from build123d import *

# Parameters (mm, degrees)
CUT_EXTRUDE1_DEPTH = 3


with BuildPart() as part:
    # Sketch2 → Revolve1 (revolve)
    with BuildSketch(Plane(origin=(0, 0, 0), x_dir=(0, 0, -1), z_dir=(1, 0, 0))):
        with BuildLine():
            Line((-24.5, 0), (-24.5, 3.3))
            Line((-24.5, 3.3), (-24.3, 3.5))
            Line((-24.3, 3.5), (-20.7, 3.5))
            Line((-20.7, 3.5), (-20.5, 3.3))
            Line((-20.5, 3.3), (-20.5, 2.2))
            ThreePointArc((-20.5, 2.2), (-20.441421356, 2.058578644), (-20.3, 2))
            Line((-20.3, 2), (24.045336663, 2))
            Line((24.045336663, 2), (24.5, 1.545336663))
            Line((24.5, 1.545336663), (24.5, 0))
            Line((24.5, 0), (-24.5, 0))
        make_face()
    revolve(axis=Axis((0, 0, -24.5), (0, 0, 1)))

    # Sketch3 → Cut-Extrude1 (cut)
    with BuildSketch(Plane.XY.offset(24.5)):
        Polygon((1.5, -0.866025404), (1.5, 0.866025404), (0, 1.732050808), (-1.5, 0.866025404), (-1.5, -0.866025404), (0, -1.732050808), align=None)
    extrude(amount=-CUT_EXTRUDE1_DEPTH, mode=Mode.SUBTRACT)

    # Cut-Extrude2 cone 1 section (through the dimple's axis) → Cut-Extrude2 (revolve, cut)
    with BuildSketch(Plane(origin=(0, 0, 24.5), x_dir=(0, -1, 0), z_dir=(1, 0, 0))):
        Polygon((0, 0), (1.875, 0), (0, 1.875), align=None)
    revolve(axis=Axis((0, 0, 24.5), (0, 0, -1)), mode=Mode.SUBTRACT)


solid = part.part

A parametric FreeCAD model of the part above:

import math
import FreeCAD as App
import Part
import Sketcher

V = App.Vector
Q = App.Units.Quantity

doc = App.newDocument("Part")
params = doc.addObject("Spreadsheet::Sheet", "Params")
for row, (alias, value) in enumerate([
    ("sketch1_radius", "0.2 mm"),
    ("sketch1_height", "49 mm"),
    ("sketch1_width", "3.3 mm"),
    ("sketch1_width2", "1.1 mm"),
    ("sketch1_height2", "3.6 mm"),
    ("revolution_angle", "360 deg"),
    ("pocket1_length", "3 mm"),
    ("groove_angle", "360 deg"),
], start=1):
    params.set(f"A{row}", alias)
    params.set(f"B{row}", "=" + value)
    params.setAlias(f"B{row}", alias)

body = doc.addObject("PartDesign::Body", "Body")

# Sketch on YZ plane
sketch1 = body.newObject("Sketcher::SketchObject", "Sketch")
sketch1.AttachmentSupport = (doc.getObject("YZ_Plane"), [""])
sketch1.MapMode = "FlatFace"
sketch1.addGeometry([
    Part.LineSegment(V(3.3, 24.5, 0), V(0, 24.5, 0)),  # 0
    Part.LineSegment(V(0, 24.5, 0), V(0, -24.5, 0)),  # 1
    Part.LineSegment(V(0, -24.5, 0), V(1.545337, -24.5, 0)),  # 2
    Part.LineSegment(V(1.545337, -24.5, 0), V(2, -24.045337, 0)),  # 3
    Part.LineSegment(V(2, -24.045337, 0), V(2, 20.3, 0)),  # 4
    Part.ArcOfCircle(Part.Circle(V(2.2, 20.3, 0), V(0, 0, 1), 0.2), math.radians(90), math.radians(180)),  # 5
    Part.LineSegment(V(2.2, 20.5, 0), V(3.3, 20.5, 0)),  # 6
    Part.LineSegment(V(3.3, 20.5, 0), V(3.5, 20.7, 0)),  # 7
    Part.LineSegment(V(3.5, 20.7, 0), V(3.5, 24.3, 0)),  # 8
    Part.LineSegment(V(3.5, 24.3, 0), V(3.3, 24.5, 0)),  # 9
], False)
sketch1.addConstraint([
    Sketcher.Constraint("Coincident", 0, 2, 1, 1),
    Sketcher.Constraint("Coincident", 1, 2, 2, 1),
    Sketcher.Constraint("Coincident", 2, 2, 3, 1),
    Sketcher.Constraint("Coincident", 3, 2, 4, 1),
    Sketcher.Constraint("Tangent", 4, 2, 5, 2),
    Sketcher.Constraint("Tangent", 5, 1, 6, 1),
    Sketcher.Constraint("Coincident", 6, 2, 7, 1),
    Sketcher.Constraint("Coincident", 7, 2, 8, 1),
    Sketcher.Constraint("Coincident", 8, 2, 9, 1),
    Sketcher.Constraint("Coincident", 9, 2, 0, 1),
    Sketcher.Constraint("Horizontal", 0),
    Sketcher.Constraint("Vertical", 1),
    Sketcher.Constraint("Horizontal", 2),
    Sketcher.Constraint("Vertical", 4),
    Sketcher.Constraint("Horizontal", 6),
    Sketcher.Constraint("Vertical", 8),
    Sketcher.Constraint("Symmetric", 0, 2, 1, 2, -1, 1),
    Sketcher.Constraint("Parallel", 3, 7),
    Sketcher.Constraint("Perpendicular", 7, 9),
    Sketcher.Constraint("Vertical", 6, 2, 9, 2),
    Sketcher.Constraint("Equal", 7, 9),
    Sketcher.Constraint("Radius", 5, Q("0.2 mm")),
    Sketcher.Constraint("DistanceY", 1, 2, 1, 1, Q("49 mm")),
    Sketcher.Constraint("DistanceX", 0, 2, 0, 1, Q("3.3 mm")),
    Sketcher.Constraint("DistanceX", 6, 1, 6, 2, Q("1.1 mm")),
    Sketcher.Constraint("DistanceY", 8, 1, 8, 2, Q("3.6 mm")),
    Sketcher.Constraint("DistanceY", 5, 1, 0, 2, Q("4 mm")),
    Sketcher.Constraint("Distance", 3, Q("0.642991 mm")),
])
sketch1.setExpression("Constraints[21]", "Params.sketch1_radius")
sketch1.setExpression("Constraints[22]", "Params.sketch1_height")
sketch1.setExpression("Constraints[23]", "Params.sketch1_width")
sketch1.setExpression("Constraints[24]", "Params.sketch1_width2")
sketch1.setExpression("Constraints[25]", "Params.sketch1_height2")
revolution = body.newObject("PartDesign::Revolution", "Revolution")
revolution.Profile = sketch1
revolution.ReferenceAxis = (sketch1, ["V_Axis"])
revolution.setExpression("Angle", "Params.revolution_angle")

# Sketch on XY plane
sketch2 = body.newObject("Sketcher::SketchObject", "Sketch001")
sketch2.AttachmentSupport = (doc.getObject("XY_Plane"), [""])
sketch2.MapMode = "FlatFace"
sketch2.AttachmentOffset = App.Placement(V(0, 0, 24.5), App.Rotation())
sketch2.addGeometry([
    Part.LineSegment(V(1.5, -0.866025, 0), V(1.5, 0.866025, 0)),  # 0
    Part.LineSegment(V(1.5, 0.866025, 0), V(0, 1.732051, 0)),  # 1
    Part.LineSegment(V(0, 1.732051, 0), V(-1.5, 0.866025, 0)),  # 2
    Part.LineSegment(V(-1.5, 0.866025, 0), V(-1.5, -0.866025, 0)),  # 3
    Part.LineSegment(V(-1.5, -0.866025, 0), V(0, -1.732051, 0)),  # 4
    Part.LineSegment(V(0, -1.732051, 0), V(1.5, -0.866025, 0)),  # 5
], False)
sketch2.addConstraint([
    Sketcher.Constraint("Coincident", 0, 2, 1, 1),
    Sketcher.Constraint("Coincident", 1, 2, 2, 1),
    Sketcher.Constraint("Coincident", 2, 2, 3, 1),
    Sketcher.Constraint("Coincident", 3, 2, 4, 1),
    Sketcher.Constraint("Coincident", 4, 2, 5, 1),
    Sketcher.Constraint("Coincident", 5, 2, 0, 1),
    Sketcher.Constraint("Vertical", 0),
    Sketcher.Constraint("Vertical", 3),
    Sketcher.Constraint("Symmetric", 0, 2, 3, 2, -1, 1),
    Sketcher.Constraint("Symmetric", 1, 2, 4, 2, -1, 1),
    Sketcher.Constraint("PointOnObject", 1, 2, -2),
    Sketcher.Constraint("Parallel", 2, 5),
    Sketcher.Constraint("Horizontal", 0, 2, 2, 2),
    Sketcher.Constraint("Angle", 1, Q("150 deg")),
    Sketcher.Constraint("DistanceX", 2, 2, 0, 2, Q("3 mm")),
    Sketcher.Constraint("DistanceY", 0, 1, 0, 2, Q("1.732051 mm")),
])
pocket1 = body.newObject("PartDesign::Pocket", "Pocket")
pocket1.Profile = sketch2
pocket1.setExpression("Length", "Params.pocket1_length")

# Sketch on YZ plane
sketch3 = body.newObject("Sketcher::SketchObject", "Sketch002")
sketch3.AttachmentSupport = (doc.getObject("YZ_Plane"), [""])
sketch3.MapMode = "FlatFace"
sketch3.addGeometry([
    Part.LineSegment(V(0, 24.5, 0), V(-1.875, 24.5, 0)),
    Part.LineSegment(V(-1.875, 24.5, 0), V(0, 22.625, 0)),
    Part.LineSegment(V(0, 22.625, 0), V(0, 24.5, 0)),
], False)
sketch3.addConstraint([
    Sketcher.Constraint("Coincident", 0, 2, 1, 1),
    Sketcher.Constraint("Coincident", 1, 2, 2, 1),
    Sketcher.Constraint("Coincident", 2, 2, 0, 1),
    Sketcher.Constraint("Horizontal", 0),
    Sketcher.Constraint("Vertical", 2),
    Sketcher.Constraint("PointOnObject", 1, 2, -2),
    Sketcher.Constraint("Equal", 0, 2),
    Sketcher.Constraint("DistanceY", -1, 1, 0, 2, Q("24.5 mm")),
    Sketcher.Constraint("DistanceX", 0, 2, 0, 1, Q("1.875 mm")),
])
groove = body.newObject("PartDesign::Groove", "Groove")
groove.Profile = sketch3
groove.ReferenceAxis = (sketch3, ["V_Axis"])
groove.setExpression("Angle", "Params.groove_angle")

doc.recompute()
